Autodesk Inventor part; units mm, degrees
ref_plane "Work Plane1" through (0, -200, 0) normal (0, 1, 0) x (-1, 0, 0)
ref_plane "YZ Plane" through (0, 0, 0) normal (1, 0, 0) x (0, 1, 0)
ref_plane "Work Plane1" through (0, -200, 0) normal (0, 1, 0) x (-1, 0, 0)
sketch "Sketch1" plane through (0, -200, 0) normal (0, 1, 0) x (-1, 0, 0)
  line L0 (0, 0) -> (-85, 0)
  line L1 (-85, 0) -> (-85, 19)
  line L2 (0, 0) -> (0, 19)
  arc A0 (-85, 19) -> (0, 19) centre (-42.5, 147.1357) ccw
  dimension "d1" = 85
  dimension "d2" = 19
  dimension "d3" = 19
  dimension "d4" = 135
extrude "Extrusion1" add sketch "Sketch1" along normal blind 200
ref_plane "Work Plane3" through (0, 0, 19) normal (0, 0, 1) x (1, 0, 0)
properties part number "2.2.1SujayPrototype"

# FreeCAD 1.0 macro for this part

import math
import FreeCAD as App
import Part
import Sketcher
Q = App.Units.Quantity

doc = App.newDocument("Part")
body = doc.addObject("PartDesign::Body", "Body")

sketch1 = doc.addObject("Sketcher::SketchObject", "Sketch")
body.addObject(sketch1)
sketch1.AttachmentSupport = (doc.XZ_Plane, [""])
sketch1.MapMode = "FlatFace"
sketch1.AttachmentOffset = App.Placement(App.Vector(0, 0, 200), App.Rotation())
sketch1.addGeometry([
    Part.LineSegment(App.Vector(85, 0, 0), App.Vector(0, 0, 0)),
    Part.LineSegment(App.Vector(0, 0, 0), App.Vector(0, 19, 0)),
    Part.ArcOfCircle(Part.Circle(App.Vector(42, 147, 0), App.Vector(0, 0, 1), 135), math.radians(-108), math.radians(-72)),
    Part.LineSegment(App.Vector(85, 19, 0), App.Vector(85, 0, 0)),
], False)
sketch1.addConstraint([
    Sketcher.Constraint("Coincident", 0, 2, 1, 1),
    Sketcher.Constraint("Coincident", 1, 2, 2, 1),
    Sketcher.Constraint("Coincident", 2, 2, 3, 1),
    Sketcher.Constraint("Coincident", 3, 2, 0, 1),
    Sketcher.Constraint("Horizontal", 0),
    Sketcher.Constraint("Vertical", 1),
    Sketcher.Constraint("Vertical", 3),
    Sketcher.Constraint("Coincident", 0, 2, -1, 1),
    Sketcher.Constraint("Horizontal", 1, 2, 2, 2),
    Sketcher.Constraint("Radius", 2, Q("135 mm")),
    Sketcher.Constraint("DistanceX", 0, 2, 0, 1, Q("85 mm")),
    Sketcher.Constraint("DistanceY", 1, 1, 1, 2, Q("19 mm")),
])
pad1 = doc.addObject("PartDesign::Pad", "Pad")
body.addObject(pad1)
pad1.Profile = sketch1
pad1.Length = 200
pad1.Reversed = True

doc.recompute()
